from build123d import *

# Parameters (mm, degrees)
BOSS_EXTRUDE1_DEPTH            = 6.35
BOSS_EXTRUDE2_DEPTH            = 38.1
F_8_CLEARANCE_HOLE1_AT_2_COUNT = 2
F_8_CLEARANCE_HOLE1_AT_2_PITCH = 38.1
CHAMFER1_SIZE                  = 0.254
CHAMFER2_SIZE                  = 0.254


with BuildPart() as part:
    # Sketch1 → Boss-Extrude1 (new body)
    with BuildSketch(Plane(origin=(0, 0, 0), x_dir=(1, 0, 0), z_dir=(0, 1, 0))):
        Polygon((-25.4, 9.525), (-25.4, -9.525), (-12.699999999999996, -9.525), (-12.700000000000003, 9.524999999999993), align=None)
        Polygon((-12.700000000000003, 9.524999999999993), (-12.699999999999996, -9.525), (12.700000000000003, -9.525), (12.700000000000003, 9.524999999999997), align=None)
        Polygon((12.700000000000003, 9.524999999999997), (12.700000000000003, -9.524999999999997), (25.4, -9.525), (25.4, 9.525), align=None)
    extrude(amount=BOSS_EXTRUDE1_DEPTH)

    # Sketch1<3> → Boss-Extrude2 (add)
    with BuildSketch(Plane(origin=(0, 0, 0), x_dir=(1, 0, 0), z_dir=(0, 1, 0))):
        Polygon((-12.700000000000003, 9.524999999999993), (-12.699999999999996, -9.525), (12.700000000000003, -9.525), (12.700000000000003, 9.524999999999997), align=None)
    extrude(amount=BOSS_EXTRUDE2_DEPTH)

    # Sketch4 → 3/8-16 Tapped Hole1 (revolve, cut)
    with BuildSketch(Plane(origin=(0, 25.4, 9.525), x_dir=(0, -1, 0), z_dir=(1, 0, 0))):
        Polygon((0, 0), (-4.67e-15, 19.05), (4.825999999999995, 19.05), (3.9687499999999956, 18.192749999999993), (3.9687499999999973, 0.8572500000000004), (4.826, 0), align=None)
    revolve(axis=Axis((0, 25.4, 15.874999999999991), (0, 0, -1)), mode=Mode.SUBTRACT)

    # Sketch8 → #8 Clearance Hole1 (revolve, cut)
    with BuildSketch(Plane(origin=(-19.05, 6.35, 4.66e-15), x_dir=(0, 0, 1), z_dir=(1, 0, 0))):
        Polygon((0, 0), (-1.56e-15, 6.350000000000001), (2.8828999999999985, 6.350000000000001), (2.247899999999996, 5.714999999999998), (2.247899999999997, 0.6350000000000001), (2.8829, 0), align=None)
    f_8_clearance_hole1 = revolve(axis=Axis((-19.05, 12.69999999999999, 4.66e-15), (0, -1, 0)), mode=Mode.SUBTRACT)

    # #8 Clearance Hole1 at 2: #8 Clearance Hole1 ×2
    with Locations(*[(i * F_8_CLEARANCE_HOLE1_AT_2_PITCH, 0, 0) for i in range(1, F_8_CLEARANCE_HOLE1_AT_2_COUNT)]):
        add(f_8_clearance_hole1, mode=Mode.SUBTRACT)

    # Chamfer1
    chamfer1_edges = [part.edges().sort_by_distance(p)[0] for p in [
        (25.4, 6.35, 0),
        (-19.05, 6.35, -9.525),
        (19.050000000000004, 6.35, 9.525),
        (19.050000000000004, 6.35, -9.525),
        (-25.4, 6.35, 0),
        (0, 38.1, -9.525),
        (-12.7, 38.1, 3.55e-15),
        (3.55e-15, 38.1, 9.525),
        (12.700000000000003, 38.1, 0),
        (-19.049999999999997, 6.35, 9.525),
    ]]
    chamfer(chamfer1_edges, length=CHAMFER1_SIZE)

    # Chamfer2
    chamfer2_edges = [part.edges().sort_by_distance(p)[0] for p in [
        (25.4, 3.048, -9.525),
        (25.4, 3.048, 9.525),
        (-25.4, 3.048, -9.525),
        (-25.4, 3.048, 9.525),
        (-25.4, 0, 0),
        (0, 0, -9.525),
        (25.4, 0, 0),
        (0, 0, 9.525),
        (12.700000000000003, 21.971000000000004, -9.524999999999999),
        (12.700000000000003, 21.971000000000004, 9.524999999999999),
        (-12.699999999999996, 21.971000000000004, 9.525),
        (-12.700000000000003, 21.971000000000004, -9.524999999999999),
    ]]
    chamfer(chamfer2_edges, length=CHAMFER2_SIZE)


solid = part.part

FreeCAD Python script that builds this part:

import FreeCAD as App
import Part
import Sketcher

V = App.Vector
Q = App.Units.Quantity


def edges_at(feature, points):
    """Names of the edges that pass closest to the given points."""
    edges = feature.Shape.Edges
    near = lambda p: min(range(len(edges)), key=lambda i: edges[i].distToShape(Part.Vertex(*p))[0])
    return sorted({f"Edge{near(p) + 1}" for p in points})


def add_polygon(sketch, points):
    """Adds a closed chain of lines whose ends are joined by coincident constraints."""
    first, n = sketch.GeometryCount, len(points)
    for a, b in zip(points, points[1:] + points[:1]):
        sketch.addGeometry(Part.LineSegment(App.Vector(*a, 0), App.Vector(*b, 0)), False)
    for i in range(n):
        sketch.addConstraint(Sketcher.Constraint("Coincident", first + i, 2, first + (i + 1) % n, 1))

doc = App.newDocument("Part")
body = doc.addObject("PartDesign::Body", "Body")

# Sketch on XZ plane
sketch1 = body.newObject("Sketcher::SketchObject", "Sketch")
sketch1.AttachmentSupport = (doc.getObject("XZ_Plane"), [""])
sketch1.MapMode = "FlatFace"
add_polygon(sketch1, [(-25.4, -9.525), (-25.4, 9.525), (25.4, 9.525), (25.4, -9.525)])  # lines 0-3
sketch1.addConstraint(Sketcher.Constraint("Vertical", 0))
sketch1.addConstraint(Sketcher.Constraint("Horizontal", 1))
sketch1.addConstraint(Sketcher.Constraint("Vertical", 2))
sketch1.addConstraint(Sketcher.Constraint("Horizontal", 3))
sketch1.addConstraint(Sketcher.Constraint("Symmetric", 0, 2, 2, 2, -1, 1))
sketch1.addConstraint(Sketcher.Constraint("DistanceX", 1, 1, 1, 2, Q("2 in")))
sketch1.addConstraint(Sketcher.Constraint("DistanceY", 0, 1, 0, 2, Q("0.75 in")))
pad1 = body.newObject("PartDesign::Pad", "Pad")
pad1.Profile = sketch1
pad1.Length = Q("0.25 in")
pad1.Reversed = True

# Sketch on XZ plane
sketch2 = body.newObject("Sketcher::SketchObject", "Sketch001")
sketch2.AttachmentSupport = (doc.getObject("XZ_Plane"), [""])
sketch2.MapMode = "FlatFace"
add_polygon(sketch2, [(-12.7, -9.525), (-12.7, 9.525), (12.7, 9.525), (12.7, -9.525)])  # lines 0-3
sketch2.addConstraint(Sketcher.Constraint("Vertical", 0))
sketch2.addConstraint(Sketcher.Constraint("Horizontal", 1))
sketch2.addConstraint(Sketcher.Constraint("Vertical", 2))
sketch2.addConstraint(Sketcher.Constraint("Horizontal", 3))
sketch2.addConstraint(Sketcher.Constraint("Symmetric", 0, 2, 2, 2, -1, 1))
sketch2.addConstraint(Sketcher.Constraint("DistanceX", 1, 1, 1, 2, Q("1 in")))
sketch2.addConstraint(Sketcher.Constraint("DistanceY", 0, 1, 0, 2, Q("0.75 in")))
pad2 = body.newObject("PartDesign::Pad", "Pad001")
pad2.Profile = sketch2
pad2.Length = Q("1.5 in")
pad2.Reversed = True

# Sketch on YZ plane
sketch3 = body.newObject("Sketcher::SketchObject", "Sketch002")
sketch3.AttachmentSupport = (doc.getObject("YZ_Plane"), [""])
sketch3.MapMode = "FlatFace"
add_polygon(sketch3, [(25.4, -9.525), (25.4, 9.525), (20.574, 9.525), (21.43125, 8.66775), (21.43125, -8.66775), (20.574, -9.525)])  # lines 0-5
sketch3.addGeometry(Part.LineSegment(V(25.4, 9.525, 0), V(25.4, -9.525, 0)), True)  # axis
sketch3.addConstraint(Sketcher.Constraint("Vertical", 0))
sketch3.addConstraint(Sketcher.Constraint("Horizontal", 1))
sketch3.addConstraint(Sketcher.Constraint("Vertical", 3))
sketch3.addConstraint(Sketcher.Constraint("Horizontal", 5))
sketch3.addConstraint(Sketcher.Constraint("Vertical", 6))
sketch3.addConstraint(Sketcher.Constraint("Coincident", 6, 1, 0, 2))
sketch3.addConstraint(Sketcher.Constraint("Symmetric", 1, 2, 4, 2, -1))
sketch3.addConstraint(Sketcher.Constraint("Perpendicular", 2, 4))
sketch3.addConstraint(Sketcher.Constraint("Horizontal", 4, 2, 6, 2))
sketch3.addConstraint(Sketcher.Constraint("Equal", 2, 4))
sketch3.addConstraint(Sketcher.Constraint("DistanceX", -1, 1, 0, 2, Q("1 in")))
sketch3.addConstraint(Sketcher.Constraint("DistanceX", 1, 2, 1, 1, Q("0.19 in")))
sketch3.addConstraint(Sketcher.Constraint("DistanceY", 0, 1, 0, 2, Q("0.75 in")))
sketch3.addConstraint(Sketcher.Constraint("DistanceY", 3, 2, 3, 1, Q("0.6825 in")))
groove = body.newObject("PartDesign::Groove", "Groove")
groove.Profile = sketch3
groove.ReferenceAxis = (sketch3, ["Axis0"])
groove.Angle = 360

# Sketch on YZ plane
sketch4 = body.newObject("Sketcher::SketchObject", "Sketch003")
sketch4.AttachmentSupport = (doc.getObject("YZ_Plane"), [""])
sketch4.MapMode = "FlatFace"
sketch4.AttachmentOffset = App.Placement(V(0, 0, -0.75 * 25.4), App.Rotation())
add_polygon(sketch4, [(0, 0), (6.35, 0), (6.35, 2.8829), (5.715, 2.2479), (0.635, 2.2479), (0, 2.8829)])  # lines 0-5
sketch4.addConstraint(Sketcher.Constraint("Horizontal", 0))
sketch4.addConstraint(Sketcher.Constraint("Vertical", 1))
sketch4.addConstraint(Sketcher.Constraint("Horizontal", 3))
sketch4.addConstraint(Sketcher.Constraint("Vertical", 5))
sketch4.addConstraint(Sketcher.Constraint("Coincident", 5, 2, -1, 1))
sketch4.addConstraint(Sketcher.Constraint("Perpendicular", 2, 4))
sketch4.addConstraint(Sketcher.Constraint("Horizontal", 1, 2, 4, 2))
sketch4.addConstraint(Sketcher.Constraint("Equal", 2, 4))
sketch4.addConstraint(Sketcher.Constraint("DistanceX", 3, 2, 3, 1, Q("0.2 in")))
sketch4.addConstraint(Sketcher.Constraint("DistanceX", 0, 1, 0, 2, Q("0.25 in")))
sketch4.addConstraint(Sketcher.Constraint("DistanceY", 1, 1, 1, 2, Q("0.1135 in")))
groove2 = body.newObject("PartDesign::Groove", "Groove001")
groove2.Profile = sketch4
groove2.ReferenceAxis = (sketch4, ["H_Axis"])
groove2.Angle = 360
doc.recompute()

linearpattern = body.newObject("PartDesign::LinearPattern", "LinearPattern")
linearpattern.Originals = [groove2]
linearpattern.Direction = (doc.getObject("X_Axis"), [""])
linearpattern.Mode = "offset"
linearpattern.Offset = Q("1.5 in")
linearpattern.Occurrences = 2
body.Tip = linearpattern
doc.recompute()

chamfer = body.newObject("PartDesign::Chamfer", "Chamfer")
chamfer.Base = (linearpattern, edges_at(linearpattern, [
    (25.4, 6.35, 0),
    (-19.05, 6.35, -9.525),
    (19.05, 6.35, 9.525),
    (19.05, 6.35, -9.525),
    (-25.4, 6.35, 0),
    (0, 38.1, -9.525),
    (-12.7, 38.1, 0),
    (0, 38.1, 9.525),
    (12.7, 38.1, 0),
    (-19.05, 6.35, 9.525),
]))
chamfer.Size = Q("0.01 in")
doc.recompute()

chamfer2 = body.newObject("PartDesign::Chamfer", "Chamfer001")
chamfer2.Base = (chamfer, edges_at(chamfer, [
    (25.4, 3.048, -9.525),
    (25.4, 3.048, 9.525),
    (-25.4, 3.048, -9.525),
    (-25.4, 3.048, 9.525),
    (-25.4, 0, 0),
    (0, 0, -9.525),
    (25.4, 0, 0),
    (0, 0, 9.525),
    (12.7, 21.971, -9.525),
    (12.7, 21.971, 9.525),
    (-12.7, 21.971, 9.525),
    (-12.7, 21.971, -9.525),
]))
chamfer2.Size = Q("0.01 in")

doc.recompute()
